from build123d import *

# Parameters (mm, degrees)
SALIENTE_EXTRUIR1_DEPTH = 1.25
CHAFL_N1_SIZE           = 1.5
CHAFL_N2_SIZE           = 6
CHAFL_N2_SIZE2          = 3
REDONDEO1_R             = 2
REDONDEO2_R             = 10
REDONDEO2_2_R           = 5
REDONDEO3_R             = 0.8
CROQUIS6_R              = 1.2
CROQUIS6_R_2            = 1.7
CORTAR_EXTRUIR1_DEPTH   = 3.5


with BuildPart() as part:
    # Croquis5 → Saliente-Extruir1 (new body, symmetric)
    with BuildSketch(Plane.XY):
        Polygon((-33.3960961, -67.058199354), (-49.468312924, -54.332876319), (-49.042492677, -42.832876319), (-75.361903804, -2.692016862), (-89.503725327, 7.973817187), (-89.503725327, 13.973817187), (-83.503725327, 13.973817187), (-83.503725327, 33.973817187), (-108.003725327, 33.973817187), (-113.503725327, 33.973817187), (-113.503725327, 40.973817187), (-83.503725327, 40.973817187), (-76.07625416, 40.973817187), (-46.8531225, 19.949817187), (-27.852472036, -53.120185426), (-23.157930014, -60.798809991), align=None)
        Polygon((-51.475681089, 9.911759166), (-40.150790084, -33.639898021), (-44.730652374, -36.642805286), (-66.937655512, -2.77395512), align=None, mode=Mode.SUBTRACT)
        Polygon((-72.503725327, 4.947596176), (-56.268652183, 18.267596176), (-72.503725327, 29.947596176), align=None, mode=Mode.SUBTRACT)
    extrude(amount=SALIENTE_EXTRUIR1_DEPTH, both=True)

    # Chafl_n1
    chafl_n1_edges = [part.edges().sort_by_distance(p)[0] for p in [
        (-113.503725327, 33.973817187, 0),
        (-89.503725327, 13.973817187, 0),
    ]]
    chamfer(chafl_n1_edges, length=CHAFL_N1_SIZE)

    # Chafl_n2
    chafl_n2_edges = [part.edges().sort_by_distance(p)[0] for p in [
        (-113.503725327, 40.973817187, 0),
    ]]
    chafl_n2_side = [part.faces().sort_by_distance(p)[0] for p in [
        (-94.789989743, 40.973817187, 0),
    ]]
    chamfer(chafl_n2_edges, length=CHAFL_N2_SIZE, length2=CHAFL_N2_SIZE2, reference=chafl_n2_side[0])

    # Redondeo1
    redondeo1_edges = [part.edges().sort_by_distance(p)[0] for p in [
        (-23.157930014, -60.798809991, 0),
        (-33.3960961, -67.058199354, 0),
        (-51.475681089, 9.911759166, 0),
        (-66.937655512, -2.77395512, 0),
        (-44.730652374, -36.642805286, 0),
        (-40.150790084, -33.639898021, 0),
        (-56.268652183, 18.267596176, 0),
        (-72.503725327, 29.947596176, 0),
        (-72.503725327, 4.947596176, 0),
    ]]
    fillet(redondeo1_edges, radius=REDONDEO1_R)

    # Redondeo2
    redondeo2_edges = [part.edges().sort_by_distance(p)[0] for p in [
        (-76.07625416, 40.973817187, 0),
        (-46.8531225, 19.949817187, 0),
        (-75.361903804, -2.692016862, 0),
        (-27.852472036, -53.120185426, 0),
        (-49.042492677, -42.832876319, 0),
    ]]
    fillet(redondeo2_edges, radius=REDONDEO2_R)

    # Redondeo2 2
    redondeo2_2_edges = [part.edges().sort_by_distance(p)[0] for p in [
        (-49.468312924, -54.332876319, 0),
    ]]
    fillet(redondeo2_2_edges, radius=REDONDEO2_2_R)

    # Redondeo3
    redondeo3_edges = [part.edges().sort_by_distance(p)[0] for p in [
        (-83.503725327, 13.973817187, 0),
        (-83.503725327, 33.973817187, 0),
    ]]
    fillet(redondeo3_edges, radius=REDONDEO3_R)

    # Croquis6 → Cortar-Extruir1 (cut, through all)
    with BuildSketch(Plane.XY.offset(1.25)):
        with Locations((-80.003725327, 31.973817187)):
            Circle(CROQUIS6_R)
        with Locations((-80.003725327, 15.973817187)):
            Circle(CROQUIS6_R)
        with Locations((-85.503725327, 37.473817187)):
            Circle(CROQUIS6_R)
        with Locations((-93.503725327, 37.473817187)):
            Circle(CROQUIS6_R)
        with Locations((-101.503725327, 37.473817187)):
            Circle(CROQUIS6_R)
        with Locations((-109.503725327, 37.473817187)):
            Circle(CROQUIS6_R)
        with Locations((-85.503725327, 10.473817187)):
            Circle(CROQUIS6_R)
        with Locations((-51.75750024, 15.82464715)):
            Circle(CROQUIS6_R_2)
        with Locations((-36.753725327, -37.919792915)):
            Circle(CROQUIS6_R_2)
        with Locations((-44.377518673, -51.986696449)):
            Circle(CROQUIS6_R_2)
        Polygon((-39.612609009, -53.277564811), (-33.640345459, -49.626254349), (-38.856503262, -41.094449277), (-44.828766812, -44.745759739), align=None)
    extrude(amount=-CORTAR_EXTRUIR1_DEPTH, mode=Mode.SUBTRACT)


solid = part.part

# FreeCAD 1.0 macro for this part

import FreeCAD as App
import Part
import Sketcher

V = App.Vector
Q = App.Units.Quantity


def edges_at(feature, points):
    """Names of the edges that pass closest to the given points."""
    edges = feature.Shape.Edges
    near = lambda p: min(range(len(edges)), key=lambda i: edges[i].distToShape(Part.Vertex(*p))[0])
    return sorted({f"Edge{near(p) + 1}" for p in points})

doc = App.newDocument("Part")
body = doc.addObject("PartDesign::Body", "Body")

# Sketch on XY plane
sketch1 = body.newObject("Sketcher::SketchObject", "Sketch")
sketch1.AttachmentSupport = (doc.getObject("XY_Plane"), [""])
sketch1.MapMode = "FlatFace"
sketch1.addGeometry(Part.LineSegment(V(-49.468313, -54.332876, 0), V(-33.396096, -67.058199, 0)), False)
sketch1.addGeometry(Part.LineSegment(V(-33.396096, -67.058199, 0), V(-23.15793, -60.79881, 0)), False)
sketch1.addGeometry(Part.LineSegment(V(-23.15793, -60.79881, 0), V(-27.852472, -53.120185, 0)), False)
sketch1.addGeometry(Part.LineSegment(V(-27.852472, -53.120185, 0), V(-46.853122, 19.949817, 0)), False)
sketch1.addGeometry(Part.LineSegment(V(-46.853122, 19.949817, 0), V(-76.076254, 40.973817, 0)), False)
sketch1.addGeometry(Part.LineSegment(V(-76.076254, 40.973817, 0), V(-113.503725, 40.973817, 0)), False)
sketch1.addGeometry(Part.LineSegment(V(-113.503725, 40.973817, 0), V(-113.503725, 33.973817, 0)), False)
sketch1.addGeometry(Part.LineSegment(V(-113.503725, 33.973817, 0), V(-83.503725, 33.973817, 0)), False)
sketch1.addGeometry(Part.LineSegment(V(-83.503725, 33.973817, 0), V(-83.503725, 13.973817, 0)), False)
sketch1.addGeometry(Part.LineSegment(V(-83.503725, 13.973817, 0), V(-89.503725, 13.973817, 0)), False)
sketch1.addGeometry(Part.LineSegment(V(-89.503725, 13.973817, 0), V(-89.503725, 7.973817, 0)), False)
sketch1.addGeometry(Part.LineSegment(V(-89.503725, 7.973817, 0), V(-75.361904, -2.692017, 0)), False)
sketch1.addGeometry(Part.LineSegment(V(-75.361904, -2.692017, 0), V(-49.042493, -42.832876, 0)), False)
sketch1.addGeometry(Part.LineSegment(V(-49.042493, -42.832876, 0), V(-49.468313, -54.332876, 0)), False)
sketch1.addGeometry(Part.LineSegment(V(-51.475681, 9.911759, 0), V(-40.15079, -33.639898, 0)), False)
sketch1.addGeometry(Part.LineSegment(V(-40.15079, -33.639898, 0), V(-44.730652, -36.642805, 0)), False)
sketch1.addGeometry(Part.LineSegment(V(-44.730652, -36.642805, 0), V(-66.937656, -2.773955, 0)), False)
sketch1.addGeometry(Part.LineSegment(V(-66.937656, -2.773955, 0), V(-51.475681, 9.911759, 0)), False)
sketch1.addGeometry(Part.LineSegment(V(-72.503725, 4.947596, 0), V(-72.503725, 29.947596, 0)), False)
sketch1.addGeometry(Part.LineSegment(V(-72.503725, 29.947596, 0), V(-56.268652, 18.267596, 0)), False)
sketch1.addGeometry(Part.LineSegment(V(-56.268652, 18.267596, 0), V(-72.503725, 4.947596, 0)), False)
sketch1.addConstraint(Sketcher.Constraint("Coincident", 0, 2, 1, 1))
sketch1.addConstraint(Sketcher.Constraint("Coincident", 1, 2, 2, 1))
sketch1.addConstraint(Sketcher.Constraint("Coincident", 2, 2, 3, 1))
sketch1.addConstraint(Sketcher.Constraint("Coincident", 3, 2, 4, 1))
sketch1.addConstraint(Sketcher.Constraint("Coincident", 4, 2, 5, 1))
sketch1.addConstraint(Sketcher.Constraint("Coincident", 5, 2, 6, 1))
sketch1.addConstraint(Sketcher.Constraint("Coincident", 6, 2, 7, 1))
sketch1.addConstraint(Sketcher.Constraint("Coincident", 7, 2, 8, 1))
sketch1.addConstraint(Sketcher.Constraint("Coincident", 8, 2, 9, 1))
sketch1.addConstraint(Sketcher.Constraint("Coincident", 9, 2, 10, 1))
sketch1.addConstraint(Sketcher.Constraint("Coincident", 10, 2, 11, 1))
sketch1.addConstraint(Sketcher.Constraint("Coincident", 11, 2, 12, 1))
sketch1.addConstraint(Sketcher.Constraint("Coincident", 12, 2, 13, 1))
sketch1.addConstraint(Sketcher.Constraint("Coincident", 13, 2, 0, 1))
sketch1.addConstraint(Sketcher.Constraint("Coincident", 14, 2, 15, 1))
sketch1.addConstraint(Sketcher.Constraint("Coincident", 15, 2, 16, 1))
sketch1.addConstraint(Sketcher.Constraint("Coincident", 16, 2, 17, 1))
sketch1.addConstraint(Sketcher.Constraint("Coincident", 17, 2, 14, 1))
sketch1.addConstraint(Sketcher.Constraint("Coincident", 18, 2, 19, 1))
sketch1.addConstraint(Sketcher.Constraint("Coincident", 19, 2, 20, 1))
sketch1.addConstraint(Sketcher.Constraint("Coincident", 20, 2, 18, 1))
sketch1.addConstraint(Sketcher.Constraint("Horizontal", 5))
sketch1.addConstraint(Sketcher.Constraint("Vertical", 6))
sketch1.addConstraint(Sketcher.Constraint("Horizontal", 7))
sketch1.addConstraint(Sketcher.Constraint("Vertical", 8))
sketch1.addConstraint(Sketcher.Constraint("Horizontal", 9))
sketch1.addConstraint(Sketcher.Constraint("Vertical", 10))
sketch1.addConstraint(Sketcher.Constraint("Vertical", 18))
sketch1.addConstraint(Sketcher.Constraint("DistanceX", 7, 1, 7, 2, Q("30 mm")))
sketch1.addConstraint(Sketcher.Constraint("DistanceX", 9, 2, 9, 1, Q("6 mm")))
sketch1.addConstraint(Sketcher.Constraint("DistanceY", 6, 2, 6, 1, Q("7 mm")))
sketch1.addConstraint(Sketcher.Constraint("DistanceY", 8, 2, 8, 1, Q("20 mm")))
sketch1.addConstraint(Sketcher.Constraint("DistanceY", 10, 2, 10, 1, Q("6 mm")))
sketch1.addConstraint(Sketcher.Constraint("DistanceY", 18, 1, 18, 2, Q("25 mm")))
sketch1.addConstraint(Sketcher.Constraint("Distance", 1, Q("12 mm")))
sketch1.addConstraint(Sketcher.Constraint("Distance", 2, Q("9 mm")))
sketch1.addConstraint(Sketcher.Constraint("Distance", 4, Q("36 mm")))
sketch1.addConstraint(Sketcher.Constraint("Distance", 12, Q("48 mm")))
sketch1.addConstraint(Sketcher.Constraint("Distance", 14, Q("45 mm")))
sketch1.addConstraint(Sketcher.Constraint("Distance", 17, Q("20 mm")))
sketch1.addConstraint(Sketcher.Constraint("Distance", 19, Q("20 mm")))
sketch1.addConstraint(Sketcher.Constraint("Distance", 20, Q("21 mm")))
sketch1.addConstraint(Sketcher.Constraint("DistanceX", 7, 2, 18, 2, Q("11 mm")))
sketch1.addConstraint(Sketcher.Constraint("Distance", 0, Q("20.5 mm")))
sketch1.addConstraint(Sketcher.Constraint("Distance", 3, Q("75.5 mm")))
sketch1.addConstraint(Sketcher.Constraint("Distance", 16, Q("40.5 mm")))
sketch1.addConstraint(Sketcher.Constraint("DistanceY", 13, 2, 12, 2, Q("11.5 mm")))
sketch1.addConstraint(Sketcher.Constraint("DistanceY", 3, 2, 4, 2, Q("21.024 mm")))
sketch1.addConstraint(Sketcher.Constraint("DistanceX", 5, 2, 5, 1, Q("37.427471 mm")))
sketch1.addConstraint(Sketcher.Constraint("DistanceY", 0, 2, -1, 1, Q("67.058199 mm")))
sketch1.addConstraint(Sketcher.Constraint("DistanceY", 14, 2, -1, 1, Q("33.639898 mm")))
sketch1.addConstraint(Sketcher.Constraint("Distance", 11, Q("17.713022 mm")))
sketch1.addConstraint(Sketcher.Constraint("Distance", 13, Q("11.507881 mm")))
sketch1.addConstraint(Sketcher.Constraint("Distance", 15, Q("5.476549 mm")))
sketch1.addConstraint(Sketcher.Constraint("DistanceX", 1, 2, -1, 1, Q("23.15793 mm")))
sketch1.addConstraint(Sketcher.Constraint("DistanceY", 1, 2, -1, 1, Q("60.79881 mm")))
sketch1.addConstraint(Sketcher.Constraint("DistanceX", 14, 2, -1, 1, Q("40.15079 mm")))
sketch1.addConstraint(Sketcher.Constraint("DistanceX", 17, 2, -1, 1, Q("51.475681 mm")))
sketch1.addConstraint(Sketcher.Constraint("DistanceX", 3, 2, 2, 2, Q("19.00065 mm")))
sketch1.addConstraint(Sketcher.Constraint("DistanceX", 4, 2, 0, 2, Q("42.680158 mm")))
sketch1.addConstraint(Sketcher.Constraint("DistanceX", 10, 2, 11, 2, Q("14.141822 mm")))
sketch1.addConstraint(Sketcher.Constraint("DistanceX", 12, 2, 15, 2, Q("4.31184 mm")))
sketch1.addConstraint(Sketcher.Constraint("DistanceY", 18, 2, 4, 2, Q("11.026221 mm")))
pad1 = body.newObject("PartDesign::Pad", "Pad")
pad1.Profile = sketch1
pad1.Length = 2.5
pad1.Midplane = True
doc.recompute()

chamfer = body.newObject("PartDesign::Chamfer", "Chamfer")
chamfer.Base = (pad1, edges_at(pad1, [(-113.504, 33.974, 0), (-89.504, 13.974, 0)]))
chamfer.Size = 1.5
doc.recompute()

chamfer2 = body.newObject("PartDesign::Chamfer", "Chamfer001")
chamfer2.Base = (chamfer, edges_at(chamfer, [(-113.504, 40.974, 0)]))
chamfer2.ChamferType = "Two distances"
chamfer2.Size = 6
chamfer2.Size2 = 3
chamfer2.FlipDirection = True
doc.recompute()

fillet = body.newObject("PartDesign::Fillet", "Fillet")
fillet.Base = (chamfer2, edges_at(chamfer2, [
    (-23.158, -60.799, 0),
    (-33.396, -67.058, 0),
    (-51.476, 9.912, 0),
    (-66.938, -2.774, 0),
    (-44.731, -36.643, 0),
    (-40.151, -33.64, 0),
    (-56.269, 18.268, 0),
    (-72.504, 29.948, 0),
    (-72.504, 4.948, 0),
]))
fillet.Radius = 2
doc.recompute()

fillet2 = body.newObject("PartDesign::Fillet", "Fillet001")
fillet2.Base = (fillet, edges_at(fillet, [
    (-76.076, 40.974, 0),
    (-46.853, 19.95, 0),
    (-75.362, -2.692, 0),
    (-27.852, -53.12, 0),
    (-49.042, -42.833, 0),
]))
fillet2.Radius = 10
doc.recompute()

fillet3 = body.newObject("PartDesign::Fillet", "Fillet002")
fillet3.Base = (fillet2, edges_at(fillet2, [(-49.468, -54.333, 0)]))
fillet3.Radius = 5
doc.recompute()

fillet4 = body.newObject("PartDesign::Fillet", "Fillet003")
fillet4.Base = (fillet3, edges_at(fillet3, [(-83.504, 13.974, 0), (-83.504, 33.974, 0)]))
fillet4.Radius = 0.8

# Sketch on XY plane
sketch2 = body.newObject("Sketcher::SketchObject", "Sketch001")
sketch2.AttachmentSupport = (doc.getObject("XY_Plane"), [""])
sketch2.MapMode = "FlatFace"
sketch2.AttachmentOffset = App.Placement(V(0, 0, 1.25), App.Rotation())
sketch2.addGeometry(Part.Circle(V(-80, 32, 0), V(0, 0, 1), 1.2), False)
sketch2.addGeometry(Part.Circle(V(-80, 16, 0), V(0, 0, 1), 1.2), False)
sketch2.addGeometry(Part.Circle(V(-85.5, 37.5, 0), V(0, 0, 1), 1.2), False)
sketch2.addGeometry(Part.Circle(V(-93.5, 37.5, 0), V(0, 0, 1), 1.2), False)
sketch2.addGeometry(Part.Circle(V(-101.5, 37.5, 0), V(0, 0, 1), 1.2), False)
sketch2.addGeometry(Part.Circle(V(-109.5, 37.5, 0), V(0, 0, 1), 1.2), False)
sketch2.addGeometry(Part.Circle(V(-85.5, 10.5, 0), V(0, 0, 1), 1.2), False)
sketch2.addGeometry(Part.Circle(V(-51.8, 15.8, 0), V(0, 0, 1), 1.7), False)
sketch2.addGeometry(Part.Circle(V(-36.8, -37.9, 0), V(0, 0, 1), 1.7), False)
sketch2.addGeometry(Part.Circle(V(-44.4, -52, 0), V(0, 0, 1), 1.7), False)
sketch2.addGeometry(Part.LineSegment(V(-39.6, -53.3, 0), V(-33.6, -49.6, 0)), False)
sketch2.addGeometry(Part.LineSegment(V(-33.6, -49.6, 0), V(-38.9, -41.1, 0)), False)
sketch2.addGeometry(Part.LineSegment(V(-38.9, -41.1, 0), V(-44.8, -44.7, 0)), False)
sketch2.addGeometry(Part.LineSegment(V(-44.8, -44.7, 0), V(-39.6, -53.3, 0)), False)
sketch2.addConstraint(Sketcher.Constraint("Coincident", 10, 2, 11, 1))
sketch2.addConstraint(Sketcher.Constraint("Coincident", 11, 2, 12, 1))
sketch2.addConstraint(Sketcher.Constraint("Coincident", 12, 2, 13, 1))
sketch2.addConstraint(Sketcher.Constraint("Coincident", 13, 2, 10, 1))
sketch2.addConstraint(Sketcher.Constraint("Equal", 0, 1))
sketch2.addConstraint(Sketcher.Constraint("Equal", 1, 2))
sketch2.addConstraint(Sketcher.Constraint("Equal", 2, 3))
sketch2.addConstraint(Sketcher.Constraint("Equal", 3, 4))
sketch2.addConstraint(Sketcher.Constraint("Equal", 4, 5))
sketch2.addConstraint(Sketcher.Constraint("Equal", 5, 6))
sketch2.addConstraint(Sketcher.Constraint("Equal", 7, 8))
sketch2.addConstraint(Sketcher.Constraint("Equal", 8, 9))
sketch2.addConstraint(Sketcher.Constraint("Perpendicular", 10, 11))
sketch2.addConstraint(Sketcher.Constraint("Perpendicular", 11, 12))
sketch2.addConstraint(Sketcher.Constraint("Perpendicular", 12, 13))
sketch2.addConstraint(Sketcher.Constraint("Horizontal", 2, 3, 3, 3))
sketch2.addConstraint(Sketcher.Constraint("Horizontal", 3, 3, 4, 3))
sketch2.addConstraint(Sketcher.Constraint("Horizontal", 4, 3, 5, 3))
sketch2.addConstraint(Sketcher.Constraint("Vertical", 0, 3, 1, 3))
sketch2.addConstraint(Sketcher.Constraint("Vertical", 2, 3, 6, 3))
sketch2.addConstraint(Sketcher.Constraint("Diameter", 0, Q("2.4 mm")))
sketch2.addConstraint(Sketcher.Constraint("Diameter", 7, Q("3.4 mm")))
sketch2.addConstraint(Sketcher.Constraint("Distance", 10, Q("7 mm")))
sketch2.addConstraint(Sketcher.Constraint("Distance", 11, Q("10 mm")))
sketch2.addConstraint(Sketcher.Constraint("DistanceY", 1, 3, 0, 3, Q("16 mm")))
sketch2.addConstraint(Sketcher.Constraint("DistanceX", 3, 3, 2, 3, Q("8 mm")))
sketch2.addConstraint(Sketcher.Constraint("DistanceX", 4, 3, 3, 3, Q("8 mm")))
sketch2.addConstraint(Sketcher.Constraint("DistanceX", 5, 3, 4, 3, Q("8 mm")))
sketch2.addConstraint(Sketcher.Constraint("DistanceY", 6, 3, 2, 3, Q("27 mm")))
sketch2.addConstraint(Sketcher.Constraint("DistanceX", 2, 3, 0, 3, Q("5.5 mm")))
sketch2.addConstraint(Sketcher.Constraint("DistanceY", 0, 3, 2, 3, Q("5.5 mm")))
sketch2.addConstraint(Sketcher.Constraint("DistanceX", 6, 3, 8, 3, Q("48.75 mm")))
sketch2.addConstraint(Sketcher.Constraint("DistanceX", 7, 3, -1, 1, Q("51.7575 mm")))
sketch2.addConstraint(Sketcher.Constraint("DistanceY", 10, 2, 7, 3, Q("65.450901 mm")))
sketch2.addConstraint(Sketcher.Constraint("DistanceX", 9, 3, -1, 1, Q("44.377519 mm")))
sketch2.addConstraint(Sketcher.Constraint("DistanceY", 11, 2, -1, 1, Q("41.094449 mm")))
sketch2.addConstraint(Sketcher.Constraint("DistanceY", 12, 2, -1, 1, Q("44.74576 mm")))
sketch2.addConstraint(Sketcher.Constraint("DistanceX", 13, 2, -1, 1, Q("39.612609 mm")))
sketch2.addConstraint(Sketcher.Constraint("DistanceY", 7, 3, 1, 3, Q("0.14917 mm")))
sketch2.addConstraint(Sketcher.Constraint("DistanceY", 8, 3, 7, 3, Q("53.74444 mm")))
sketch2.addConstraint(Sketcher.Constraint("DistanceX", 8, 3, 10, 2, Q("3.11338 mm")))
sketch2.addConstraint(Sketcher.Constraint("DistanceY", 13, 2, 9, 3, Q("1.290868 mm")))
pocket1 = body.newObject("PartDesign::Pocket", "Pocket")
pocket1.Profile = sketch2
pocket1.Type = "ThroughAll"

doc.recompute()
